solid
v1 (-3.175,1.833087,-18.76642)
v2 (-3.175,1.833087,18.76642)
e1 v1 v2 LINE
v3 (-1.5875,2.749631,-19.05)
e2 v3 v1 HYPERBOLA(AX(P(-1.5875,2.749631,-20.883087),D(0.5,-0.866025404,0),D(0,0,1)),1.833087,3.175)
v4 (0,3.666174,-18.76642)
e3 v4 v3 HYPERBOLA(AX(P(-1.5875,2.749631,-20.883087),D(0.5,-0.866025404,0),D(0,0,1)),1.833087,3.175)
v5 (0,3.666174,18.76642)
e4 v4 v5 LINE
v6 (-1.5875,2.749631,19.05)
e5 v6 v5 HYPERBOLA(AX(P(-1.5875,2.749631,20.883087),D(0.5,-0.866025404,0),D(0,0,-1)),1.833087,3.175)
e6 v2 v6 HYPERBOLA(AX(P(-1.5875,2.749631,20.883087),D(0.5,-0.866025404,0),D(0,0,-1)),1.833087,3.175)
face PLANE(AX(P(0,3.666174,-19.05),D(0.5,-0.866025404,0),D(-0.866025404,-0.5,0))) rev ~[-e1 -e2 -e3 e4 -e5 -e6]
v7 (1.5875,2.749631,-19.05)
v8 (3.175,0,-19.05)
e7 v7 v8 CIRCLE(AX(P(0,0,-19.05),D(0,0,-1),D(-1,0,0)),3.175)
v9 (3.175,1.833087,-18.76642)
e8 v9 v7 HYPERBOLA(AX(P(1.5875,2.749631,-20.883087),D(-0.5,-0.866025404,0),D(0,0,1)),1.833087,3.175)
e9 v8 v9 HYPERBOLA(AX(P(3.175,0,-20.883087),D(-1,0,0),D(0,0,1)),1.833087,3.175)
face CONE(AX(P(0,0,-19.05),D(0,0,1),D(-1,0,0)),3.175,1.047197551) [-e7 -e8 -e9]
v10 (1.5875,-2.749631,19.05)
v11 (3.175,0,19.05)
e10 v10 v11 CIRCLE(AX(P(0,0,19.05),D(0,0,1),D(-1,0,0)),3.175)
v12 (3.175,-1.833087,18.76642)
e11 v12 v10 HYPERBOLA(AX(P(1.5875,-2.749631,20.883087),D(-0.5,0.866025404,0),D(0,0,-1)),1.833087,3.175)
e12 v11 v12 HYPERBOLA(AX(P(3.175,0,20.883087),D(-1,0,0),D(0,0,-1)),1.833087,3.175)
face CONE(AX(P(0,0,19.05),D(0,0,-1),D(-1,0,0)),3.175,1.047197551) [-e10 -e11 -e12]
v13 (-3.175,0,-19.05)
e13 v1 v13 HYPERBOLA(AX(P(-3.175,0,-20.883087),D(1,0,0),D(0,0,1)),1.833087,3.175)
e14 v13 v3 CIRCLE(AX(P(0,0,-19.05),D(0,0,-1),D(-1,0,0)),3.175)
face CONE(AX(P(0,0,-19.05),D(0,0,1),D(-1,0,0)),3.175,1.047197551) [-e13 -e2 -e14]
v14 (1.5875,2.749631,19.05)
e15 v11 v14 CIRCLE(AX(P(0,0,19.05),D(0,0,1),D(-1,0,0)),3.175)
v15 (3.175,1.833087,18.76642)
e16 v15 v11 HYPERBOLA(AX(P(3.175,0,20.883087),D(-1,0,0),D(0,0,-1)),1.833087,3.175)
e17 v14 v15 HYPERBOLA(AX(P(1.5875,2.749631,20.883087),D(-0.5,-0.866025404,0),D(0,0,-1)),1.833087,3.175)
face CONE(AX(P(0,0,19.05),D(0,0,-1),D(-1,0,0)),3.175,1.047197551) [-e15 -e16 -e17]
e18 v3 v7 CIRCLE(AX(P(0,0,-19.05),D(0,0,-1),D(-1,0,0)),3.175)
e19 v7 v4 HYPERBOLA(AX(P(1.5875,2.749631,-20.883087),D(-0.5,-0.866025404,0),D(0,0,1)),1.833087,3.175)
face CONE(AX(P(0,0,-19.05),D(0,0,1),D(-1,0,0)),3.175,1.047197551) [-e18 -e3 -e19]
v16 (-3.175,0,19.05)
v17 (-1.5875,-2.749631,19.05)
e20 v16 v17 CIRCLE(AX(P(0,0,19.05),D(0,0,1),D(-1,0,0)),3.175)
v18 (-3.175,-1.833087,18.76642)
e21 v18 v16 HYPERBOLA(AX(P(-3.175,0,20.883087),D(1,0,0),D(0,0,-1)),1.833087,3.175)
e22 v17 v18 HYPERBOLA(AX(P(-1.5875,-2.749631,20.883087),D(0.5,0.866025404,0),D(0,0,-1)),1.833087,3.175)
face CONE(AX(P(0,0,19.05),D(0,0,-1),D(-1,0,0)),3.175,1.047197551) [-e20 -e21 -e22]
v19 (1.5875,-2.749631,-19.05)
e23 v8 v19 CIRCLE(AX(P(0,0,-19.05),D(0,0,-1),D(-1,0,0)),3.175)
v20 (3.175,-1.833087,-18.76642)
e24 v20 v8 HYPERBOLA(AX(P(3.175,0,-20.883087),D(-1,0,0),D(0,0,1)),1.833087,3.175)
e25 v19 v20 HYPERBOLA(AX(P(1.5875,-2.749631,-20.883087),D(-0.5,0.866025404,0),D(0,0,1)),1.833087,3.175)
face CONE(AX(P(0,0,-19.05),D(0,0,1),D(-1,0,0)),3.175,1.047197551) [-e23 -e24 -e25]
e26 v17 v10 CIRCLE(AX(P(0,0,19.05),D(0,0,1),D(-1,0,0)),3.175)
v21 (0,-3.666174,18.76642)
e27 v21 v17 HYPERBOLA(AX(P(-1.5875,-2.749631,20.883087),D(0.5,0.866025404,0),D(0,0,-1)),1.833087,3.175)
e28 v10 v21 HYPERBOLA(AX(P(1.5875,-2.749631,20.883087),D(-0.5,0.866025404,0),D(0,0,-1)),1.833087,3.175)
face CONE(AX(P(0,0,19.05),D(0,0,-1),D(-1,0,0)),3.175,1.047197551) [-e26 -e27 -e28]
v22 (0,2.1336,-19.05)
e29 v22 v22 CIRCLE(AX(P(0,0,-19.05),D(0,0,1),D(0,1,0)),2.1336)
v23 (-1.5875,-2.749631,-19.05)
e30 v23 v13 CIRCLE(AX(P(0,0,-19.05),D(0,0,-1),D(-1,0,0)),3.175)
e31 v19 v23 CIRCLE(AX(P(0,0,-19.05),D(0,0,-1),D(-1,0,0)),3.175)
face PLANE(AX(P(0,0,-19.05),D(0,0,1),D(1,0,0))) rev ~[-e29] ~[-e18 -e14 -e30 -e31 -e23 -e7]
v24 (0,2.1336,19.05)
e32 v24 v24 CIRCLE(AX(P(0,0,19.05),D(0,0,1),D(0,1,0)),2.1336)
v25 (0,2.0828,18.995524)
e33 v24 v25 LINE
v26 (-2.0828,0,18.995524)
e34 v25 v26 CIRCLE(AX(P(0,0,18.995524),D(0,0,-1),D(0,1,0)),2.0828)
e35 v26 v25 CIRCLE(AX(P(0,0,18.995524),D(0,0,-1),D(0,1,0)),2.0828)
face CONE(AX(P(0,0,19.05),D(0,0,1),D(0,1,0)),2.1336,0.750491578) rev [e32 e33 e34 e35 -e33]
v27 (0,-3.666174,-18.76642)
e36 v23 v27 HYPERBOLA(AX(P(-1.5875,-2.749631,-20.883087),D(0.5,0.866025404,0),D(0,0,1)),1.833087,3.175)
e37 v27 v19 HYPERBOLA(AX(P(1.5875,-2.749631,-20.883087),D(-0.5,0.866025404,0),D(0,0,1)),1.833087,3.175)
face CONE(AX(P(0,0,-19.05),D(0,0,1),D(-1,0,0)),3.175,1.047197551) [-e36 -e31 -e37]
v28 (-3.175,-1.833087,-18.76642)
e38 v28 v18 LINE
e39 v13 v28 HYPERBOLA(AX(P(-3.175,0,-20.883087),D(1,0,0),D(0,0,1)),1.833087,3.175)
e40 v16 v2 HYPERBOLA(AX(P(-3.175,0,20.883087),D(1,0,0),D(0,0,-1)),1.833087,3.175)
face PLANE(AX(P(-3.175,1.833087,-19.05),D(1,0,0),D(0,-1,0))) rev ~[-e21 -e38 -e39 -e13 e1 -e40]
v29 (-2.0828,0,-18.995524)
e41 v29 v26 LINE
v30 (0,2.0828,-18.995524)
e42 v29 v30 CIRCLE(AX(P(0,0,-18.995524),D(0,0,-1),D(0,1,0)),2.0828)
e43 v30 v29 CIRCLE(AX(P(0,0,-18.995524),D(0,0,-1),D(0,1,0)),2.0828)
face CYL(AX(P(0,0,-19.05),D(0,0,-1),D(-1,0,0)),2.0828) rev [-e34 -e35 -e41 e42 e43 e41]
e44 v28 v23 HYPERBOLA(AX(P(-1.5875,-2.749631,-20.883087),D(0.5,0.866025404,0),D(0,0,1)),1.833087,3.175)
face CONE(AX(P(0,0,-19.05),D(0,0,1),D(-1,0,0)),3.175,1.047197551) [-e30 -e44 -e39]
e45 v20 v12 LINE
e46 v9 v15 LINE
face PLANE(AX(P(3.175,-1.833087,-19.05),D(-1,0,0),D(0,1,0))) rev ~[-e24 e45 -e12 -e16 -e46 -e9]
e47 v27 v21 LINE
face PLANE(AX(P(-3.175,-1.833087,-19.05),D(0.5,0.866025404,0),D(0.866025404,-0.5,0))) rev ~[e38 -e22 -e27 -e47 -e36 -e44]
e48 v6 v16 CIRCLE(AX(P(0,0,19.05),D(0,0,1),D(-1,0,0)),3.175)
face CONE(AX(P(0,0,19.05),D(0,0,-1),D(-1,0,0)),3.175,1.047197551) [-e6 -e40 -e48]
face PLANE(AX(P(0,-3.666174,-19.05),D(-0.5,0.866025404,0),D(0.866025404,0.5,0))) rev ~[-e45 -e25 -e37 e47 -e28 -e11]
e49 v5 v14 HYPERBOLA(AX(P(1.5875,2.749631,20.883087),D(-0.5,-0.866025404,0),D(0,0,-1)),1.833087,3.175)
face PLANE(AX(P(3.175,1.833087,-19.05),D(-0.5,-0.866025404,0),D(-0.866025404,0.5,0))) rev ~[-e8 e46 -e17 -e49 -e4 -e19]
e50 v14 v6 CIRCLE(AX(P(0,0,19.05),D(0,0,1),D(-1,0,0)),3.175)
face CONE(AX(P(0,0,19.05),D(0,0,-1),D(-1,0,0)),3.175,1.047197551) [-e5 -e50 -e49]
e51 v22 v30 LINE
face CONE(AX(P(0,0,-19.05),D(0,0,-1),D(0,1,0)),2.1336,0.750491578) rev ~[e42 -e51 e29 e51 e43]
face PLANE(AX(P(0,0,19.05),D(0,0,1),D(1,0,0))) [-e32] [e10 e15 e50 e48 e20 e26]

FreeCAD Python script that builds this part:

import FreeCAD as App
import Part
import Sketcher
from FreeCAD import Vector
Q = App.Units.Quantity


def faces_at(feature, points):
    """Names of the faces that lie closest to the given points."""
    faces = feature.Shape.Faces
    near = lambda p: min(range(len(faces)), key=lambda i: faces[i].distToShape(Part.Vertex(*p))[0])
    return sorted({f"Face{near(p) + 1}" for p in points})

doc = App.newDocument("Part")
params = doc.addObject("Spreadsheet::Sheet", "Params")
for row, (alias, value) in enumerate([
    ("sketch1_diameter", "0.164 in"),
    ("pad1_length", "0.75 in"),
    ("pad1_length2", "0.75 in"),
    ("sketch2_width", "0.084 in"),
    ("groove_angle", "360 deg"),
    ("sketch3_diameter", "0.25 in"),
    ("pad2_length", "39.40744 mm"),
    ("draft_angle", "60 deg"),
    ("sketch4_diameter", "0.25 in"),
    ("pad3_length", "39.40744 mm"),
    ("draft2_angle", "60 deg"),
], start=1):
    params.set(f"A{row}", alias)
    params.set(f"B{row}", "=" + value)
    params.setAlias(f"B{row}", alias)

body = doc.addObject("PartDesign::Body", "Body")

sketch1 = body.newObject("Sketcher::SketchObject", "Sketch")
sketch1.AttachmentSupport = (doc.getObject("XY_Plane"), [""])
sketch1.MapMode = "FlatFace"
sketch1.addGeometry([
    Part.LineSegment(Vector(0, 3.666174, 0), Vector(-3.175, 1.833087, 0)),
    Part.LineSegment(Vector(-3.175, 1.833087, 0), Vector(-3.175, -1.833087, 0)),
    Part.LineSegment(Vector(-3.175, -1.833087, 0), Vector(0, -3.666174, 0)),
    Part.LineSegment(Vector(0, -3.666174, 0), Vector(3.175, -1.833087, 0)),
    Part.LineSegment(Vector(3.175, -1.833087, 0), Vector(3.175, 1.833087, 0)),
    Part.LineSegment(Vector(3.175, 1.833087, 0), Vector(0, 3.666174, 0)),
    Part.Circle(Vector(0, 0, 0), Vector(0, 0, 1), 2.0828),
], False)
sketch1.addConstraint([
    Sketcher.Constraint("Coincident", 0, 2, 1, 1),
    Sketcher.Constraint("Coincident", 1, 2, 2, 1),
    Sketcher.Constraint("Coincident", 2, 2, 3, 1),
    Sketcher.Constraint("Coincident", 3, 2, 4, 1),
    Sketcher.Constraint("Coincident", 4, 2, 5, 1),
    Sketcher.Constraint("Coincident", 5, 2, 0, 1),
    Sketcher.Constraint("Vertical", 1),
    Sketcher.Constraint("Vertical", 4),
    Sketcher.Constraint("Coincident", 6, 3, -1, 1),
    Sketcher.Constraint("Symmetric", 0, 2, 3, 2, -1, 1),
    Sketcher.Constraint("Symmetric", 2, 2, 5, 2, -1, 1),
    Sketcher.Constraint("PointOnObject", 2, 2, -2),
    Sketcher.Constraint("Parallel", 2, 5),
    Sketcher.Constraint("Horizontal", 1, 2, 3, 2),
    Sketcher.Constraint("Diameter", 6, Q("0.164 in")),
    Sketcher.Constraint("Angle", 0, Q("-150 deg")),
    Sketcher.Constraint("DistanceX", 1, 2, 3, 2, Q("0.25 in")),
    Sketcher.Constraint("DistanceY", 1, 2, 1, 1, 3.666174),
])
sketch1.setExpression("Constraints[14]", "Params.sketch1_diameter")
pad1 = body.newObject("PartDesign::Pad", "Pad")
pad1.Profile = sketch1
pad1.Type = "TwoLengths"
pad1.setExpression("Length", "Params.pad1_length")
pad1.setExpression("Length2", "Params.pad1_length2")

sketch2 = body.newObject("Sketcher::SketchObject", "Sketch001")
sketch2.AttachmentSupport = (doc.getObject("YZ_Plane"), [""])
sketch2.MapMode = "FlatFace"
sketch2.addGeometry([
    Part.LineSegment(Vector(0, -19.05, 0), Vector(2.1336, -19.05, 0)),
    Part.LineSegment(Vector(2.1336, -19.05, 0), Vector(0, -16.761994, 0)),
    Part.LineSegment(Vector(0, -16.761994, 0), Vector(0, -19.05, 0)),
], False)
sketch2.addConstraint([
    Sketcher.Constraint("Coincident", 0, 2, 1, 1),
    Sketcher.Constraint("Coincident", 1, 2, 2, 1),
    Sketcher.Constraint("Coincident", 2, 2, 0, 1),
    Sketcher.Constraint("Horizontal", 0),
    Sketcher.Constraint("Vertical", 2),
    Sketcher.Constraint("PointOnObject", 1, 2, -2),
    Sketcher.Constraint("Angle", 1, Q("133 deg")),
    Sketcher.Constraint("DistanceX", 0, 1, 0, 2, Q("0.084 in")),
    Sketcher.Constraint("DistanceY", 0, 2, -1, 1, Q("0.75 in")),
])
sketch2.setExpression("Constraints[7]", "Params.sketch2_width")
groove = body.newObject("PartDesign::Groove", "Groove")
groove.Profile = sketch2
groove.ReferenceAxis = (sketch2, ["V_Axis"])
groove.setExpression("Angle", "Params.groove_angle")
body2 = doc.addObject("PartDesign::Body", "Body001")

sketch3 = body2.newObject("Sketcher::SketchObject", "Sketch002")
sketch3.AttachmentSupport = (doc.getObject("XY_Plane001"), [""])
sketch3.MapMode = "FlatFace"
sketch3.AttachmentOffset = App.Placement(Vector(0, 0, -0.75 * 25.4), App.Rotation())
sketch3.addGeometry([
    Part.LineSegment(Vector(76.362, 76.853, 0), Vector(76.362, -76.853, 0)),
    Part.LineSegment(Vector(76.362, -76.853, 0), Vector(-76.362, -76.853, 0)),
    Part.LineSegment(Vector(-76.362, -76.853, 0), Vector(-76.362, 76.853, 0)),
    Part.LineSegment(Vector(-76.362, 76.853, 0), Vector(76.362, 76.853, 0)),
    Part.Circle(Vector(0, 0, 0), Vector(0, 0, 1), 3.175),
], False)
sketch3.addConstraint([
    Sketcher.Constraint("Coincident", 0, 2, 1, 1),
    Sketcher.Constraint("Coincident", 1, 2, 2, 1),
    Sketcher.Constraint("Coincident", 2, 2, 3, 1),
    Sketcher.Constraint("Coincident", 3, 2, 0, 1),
    Sketcher.Constraint("Vertical", 0),
    Sketcher.Constraint("Horizontal", 1),
    Sketcher.Constraint("Vertical", 2),
    Sketcher.Constraint("Horizontal", 3),
    Sketcher.Constraint("Coincident", 4, 3, -1, 1),
    Sketcher.Constraint("Symmetric", 0, 2, 2, 2, -1, 1),
    Sketcher.Constraint("Diameter", 4, Q("0.25 in")),
    Sketcher.Constraint("DistanceX", 1, 2, 1, 1, 152.724),
    Sketcher.Constraint("DistanceY", 0, 2, 0, 1, 153.706),
])
sketch3.setExpression("Constraints[10]", "Params.sketch3_diameter")
pad2 = body2.newObject("PartDesign::Pad", "Pad001")
pad2.Profile = sketch3
pad2.setExpression("Length", "Params.pad2_length")
doc.recompute()

datumplane = body2.newObject("PartDesign::Plane", "DatumPlane")
datumplane.AttachmentSupport = (doc.getObject("XY_Plane001"), [""])
datumplane.MapMode = "FlatFace"
datumplane.AttachmentOffset = App.Placement(Vector(0, 0, -0.75 * 25.4), App.Rotation())
draft = body2.newObject("PartDesign::Draft", "Draft")
draft.Base = (pad2, faces_at(pad2, [
    (0, -76.853, 0.654),
    (-76.362, 0, 0.654),
    (0, 76.853, 0.654),
    (76.362, 0, 0.654),
    (3.175, 0, 0.654),
]))
draft.NeutralPlane = (datumplane, [""])
draft.setExpression("Angle", "Params.draft_angle")
draft.Reversed = False
doc.recompute()

boolean = body.newObject("PartDesign::Boolean", "Boolean")
boolean.Type = "Cut"
boolean.addObjects([body2])
doc.recompute()

mirrored = body.newObject("PartDesign::Mirrored", "Mirrored")
mirrored.Originals = [groove]
mirrored.MirrorPlane = (doc.getObject("XY_Plane"), [""])
body.Tip = mirrored
body3 = doc.addObject("PartDesign::Body", "Body002")

sketch4 = body3.newObject("Sketcher::SketchObject", "Sketch003")
sketch4.AttachmentSupport = (doc.getObject("XY_Plane002"), [""])
sketch4.MapMode = "FlatFace"
sketch4.AttachmentOffset = App.Placement(Vector(0, 0, 0.75 * 25.4), App.Rotation())
sketch4.addGeometry([
    Part.LineSegment(Vector(76.362, -76.853, 0), Vector(76.362, 76.853, 0)),
    Part.LineSegment(Vector(76.362, 76.853, 0), Vector(-76.362, 76.853, 0)),
    Part.LineSegment(Vector(-76.362, 76.853, 0), Vector(-76.362, -76.853, 0)),
    Part.LineSegment(Vector(-76.362, -76.853, 0), Vector(76.362, -76.853, 0)),
    Part.Circle(Vector(0, 0, 0), Vector(0, 0, 1), 3.175),
], False)
sketch4.addConstraint([
    Sketcher.Constraint("Coincident", 0, 2, 1, 1),
    Sketcher.Constraint("Coincident", 1, 2, 2, 1),
    Sketcher.Constraint("Coincident", 2, 2, 3, 1),
    Sketcher.Constraint("Coincident", 3, 2, 0, 1),
    Sketcher.Constraint("Vertical", 0),
    Sketcher.Constraint("Horizontal", 1),
    Sketcher.Constraint("Vertical", 2),
    Sketcher.Constraint("Horizontal", 3),
    Sketcher.Constraint("Coincident", 4, 3, -1, 1),
    Sketcher.Constraint("Symmetric", 0, 2, 2, 2, -1, 1),
    Sketcher.Constraint("Diameter", 4, Q("0.25 in")),
    Sketcher.Constraint("DistanceX", 1, 2, 1, 1, 152.724),
    Sketcher.Constraint("DistanceY", 0, 1, 0, 2, 153.706),
])
sketch4.setExpression("Constraints[10]", "Params.sketch4_diameter")
pad3 = body3.newObject("PartDesign::Pad", "Pad002")
pad3.Profile = sketch4
pad3.setExpression("Length", "Params.pad3_length")
pad3.Reversed = True
doc.recompute()

datumplane2 = body3.newObject("PartDesign::Plane", "DatumPlane001")
datumplane2.AttachmentSupport = (doc.getObject("XY_Plane002"), [""])
datumplane2.MapMode = "FlatFace"
datumplane2.AttachmentOffset = App.Placement(Vector(0, 0, 0.75 * 25.4), App.Rotation())
draft2 = body3.newObject("PartDesign::Draft", "Draft001")
draft2.Base = (pad3, faces_at(pad3, [
    (0, -76.853, -0.654),
    (-76.362, 0, -0.654),
    (0, 76.853, -0.654),
    (76.362, 0, -0.654),
    (3.175, 0, -0.654),
]))
draft2.NeutralPlane = (datumplane2, [""])
draft2.setExpression("Angle", "Params.draft2_angle")
draft2.Reversed = True
doc.recompute()

boolean2 = body.newObject("PartDesign::Boolean", "Boolean001")
boolean2.Type = "Cut"
boolean2.addObjects([body3])

doc.recompute()
